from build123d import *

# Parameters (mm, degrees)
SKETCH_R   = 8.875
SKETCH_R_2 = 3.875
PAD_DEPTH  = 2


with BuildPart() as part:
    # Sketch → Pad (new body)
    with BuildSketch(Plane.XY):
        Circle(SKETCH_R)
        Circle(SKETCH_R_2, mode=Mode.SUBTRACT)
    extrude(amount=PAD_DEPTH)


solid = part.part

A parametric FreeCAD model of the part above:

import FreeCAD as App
import Part
import Sketcher
from FreeCAD import Vector

doc = App.newDocument("Part")
params = doc.addObject("Spreadsheet::Sheet", "Params")
for row, (alias, value) in enumerate([
    ("sketch1_diameter", "17.75 mm"),
    ("sketch1_diameter2", "7.75 mm"),
    ("pad1_length", "2 mm"),
], start=1):
    params.set(f"A{row}", alias)
    params.set(f"B{row}", "=" + value)
    params.setAlias(f"B{row}", alias)

body = doc.addObject("PartDesign::Body", "Body")

sketch1 = body.newObject("Sketcher::SketchObject", "Sketch")
sketch1.AttachmentSupport = (doc.getObject("XY_Plane"), [""])
sketch1.MapMode = "FlatFace"
sketch1.addGeometry([
    Part.Circle(Vector(0, 0, 0), Vector(0, 0, 1), 8.9),
    Part.Circle(Vector(0, 0, 0), Vector(0, 0, 1), 3.9),
], False)
sketch1.addConstraint([
    Sketcher.Constraint("Coincident", 0, 3, -1, 1),
    Sketcher.Constraint("Coincident", 1, 3, -1, 1),
    Sketcher.Constraint("Diameter", 0, 17.75),
    Sketcher.Constraint("Diameter", 1, 7.75),
])
sketch1.setExpression("Constraints[2]", "Params.sketch1_diameter")
sketch1.setExpression("Constraints[3]", "Params.sketch1_diameter2")
pad1 = body.newObject("PartDesign::Pad", "Pad")
pad1.Profile = sketch1
pad1.setExpression("Length", "Params.pad1_length")

doc.recompute()
